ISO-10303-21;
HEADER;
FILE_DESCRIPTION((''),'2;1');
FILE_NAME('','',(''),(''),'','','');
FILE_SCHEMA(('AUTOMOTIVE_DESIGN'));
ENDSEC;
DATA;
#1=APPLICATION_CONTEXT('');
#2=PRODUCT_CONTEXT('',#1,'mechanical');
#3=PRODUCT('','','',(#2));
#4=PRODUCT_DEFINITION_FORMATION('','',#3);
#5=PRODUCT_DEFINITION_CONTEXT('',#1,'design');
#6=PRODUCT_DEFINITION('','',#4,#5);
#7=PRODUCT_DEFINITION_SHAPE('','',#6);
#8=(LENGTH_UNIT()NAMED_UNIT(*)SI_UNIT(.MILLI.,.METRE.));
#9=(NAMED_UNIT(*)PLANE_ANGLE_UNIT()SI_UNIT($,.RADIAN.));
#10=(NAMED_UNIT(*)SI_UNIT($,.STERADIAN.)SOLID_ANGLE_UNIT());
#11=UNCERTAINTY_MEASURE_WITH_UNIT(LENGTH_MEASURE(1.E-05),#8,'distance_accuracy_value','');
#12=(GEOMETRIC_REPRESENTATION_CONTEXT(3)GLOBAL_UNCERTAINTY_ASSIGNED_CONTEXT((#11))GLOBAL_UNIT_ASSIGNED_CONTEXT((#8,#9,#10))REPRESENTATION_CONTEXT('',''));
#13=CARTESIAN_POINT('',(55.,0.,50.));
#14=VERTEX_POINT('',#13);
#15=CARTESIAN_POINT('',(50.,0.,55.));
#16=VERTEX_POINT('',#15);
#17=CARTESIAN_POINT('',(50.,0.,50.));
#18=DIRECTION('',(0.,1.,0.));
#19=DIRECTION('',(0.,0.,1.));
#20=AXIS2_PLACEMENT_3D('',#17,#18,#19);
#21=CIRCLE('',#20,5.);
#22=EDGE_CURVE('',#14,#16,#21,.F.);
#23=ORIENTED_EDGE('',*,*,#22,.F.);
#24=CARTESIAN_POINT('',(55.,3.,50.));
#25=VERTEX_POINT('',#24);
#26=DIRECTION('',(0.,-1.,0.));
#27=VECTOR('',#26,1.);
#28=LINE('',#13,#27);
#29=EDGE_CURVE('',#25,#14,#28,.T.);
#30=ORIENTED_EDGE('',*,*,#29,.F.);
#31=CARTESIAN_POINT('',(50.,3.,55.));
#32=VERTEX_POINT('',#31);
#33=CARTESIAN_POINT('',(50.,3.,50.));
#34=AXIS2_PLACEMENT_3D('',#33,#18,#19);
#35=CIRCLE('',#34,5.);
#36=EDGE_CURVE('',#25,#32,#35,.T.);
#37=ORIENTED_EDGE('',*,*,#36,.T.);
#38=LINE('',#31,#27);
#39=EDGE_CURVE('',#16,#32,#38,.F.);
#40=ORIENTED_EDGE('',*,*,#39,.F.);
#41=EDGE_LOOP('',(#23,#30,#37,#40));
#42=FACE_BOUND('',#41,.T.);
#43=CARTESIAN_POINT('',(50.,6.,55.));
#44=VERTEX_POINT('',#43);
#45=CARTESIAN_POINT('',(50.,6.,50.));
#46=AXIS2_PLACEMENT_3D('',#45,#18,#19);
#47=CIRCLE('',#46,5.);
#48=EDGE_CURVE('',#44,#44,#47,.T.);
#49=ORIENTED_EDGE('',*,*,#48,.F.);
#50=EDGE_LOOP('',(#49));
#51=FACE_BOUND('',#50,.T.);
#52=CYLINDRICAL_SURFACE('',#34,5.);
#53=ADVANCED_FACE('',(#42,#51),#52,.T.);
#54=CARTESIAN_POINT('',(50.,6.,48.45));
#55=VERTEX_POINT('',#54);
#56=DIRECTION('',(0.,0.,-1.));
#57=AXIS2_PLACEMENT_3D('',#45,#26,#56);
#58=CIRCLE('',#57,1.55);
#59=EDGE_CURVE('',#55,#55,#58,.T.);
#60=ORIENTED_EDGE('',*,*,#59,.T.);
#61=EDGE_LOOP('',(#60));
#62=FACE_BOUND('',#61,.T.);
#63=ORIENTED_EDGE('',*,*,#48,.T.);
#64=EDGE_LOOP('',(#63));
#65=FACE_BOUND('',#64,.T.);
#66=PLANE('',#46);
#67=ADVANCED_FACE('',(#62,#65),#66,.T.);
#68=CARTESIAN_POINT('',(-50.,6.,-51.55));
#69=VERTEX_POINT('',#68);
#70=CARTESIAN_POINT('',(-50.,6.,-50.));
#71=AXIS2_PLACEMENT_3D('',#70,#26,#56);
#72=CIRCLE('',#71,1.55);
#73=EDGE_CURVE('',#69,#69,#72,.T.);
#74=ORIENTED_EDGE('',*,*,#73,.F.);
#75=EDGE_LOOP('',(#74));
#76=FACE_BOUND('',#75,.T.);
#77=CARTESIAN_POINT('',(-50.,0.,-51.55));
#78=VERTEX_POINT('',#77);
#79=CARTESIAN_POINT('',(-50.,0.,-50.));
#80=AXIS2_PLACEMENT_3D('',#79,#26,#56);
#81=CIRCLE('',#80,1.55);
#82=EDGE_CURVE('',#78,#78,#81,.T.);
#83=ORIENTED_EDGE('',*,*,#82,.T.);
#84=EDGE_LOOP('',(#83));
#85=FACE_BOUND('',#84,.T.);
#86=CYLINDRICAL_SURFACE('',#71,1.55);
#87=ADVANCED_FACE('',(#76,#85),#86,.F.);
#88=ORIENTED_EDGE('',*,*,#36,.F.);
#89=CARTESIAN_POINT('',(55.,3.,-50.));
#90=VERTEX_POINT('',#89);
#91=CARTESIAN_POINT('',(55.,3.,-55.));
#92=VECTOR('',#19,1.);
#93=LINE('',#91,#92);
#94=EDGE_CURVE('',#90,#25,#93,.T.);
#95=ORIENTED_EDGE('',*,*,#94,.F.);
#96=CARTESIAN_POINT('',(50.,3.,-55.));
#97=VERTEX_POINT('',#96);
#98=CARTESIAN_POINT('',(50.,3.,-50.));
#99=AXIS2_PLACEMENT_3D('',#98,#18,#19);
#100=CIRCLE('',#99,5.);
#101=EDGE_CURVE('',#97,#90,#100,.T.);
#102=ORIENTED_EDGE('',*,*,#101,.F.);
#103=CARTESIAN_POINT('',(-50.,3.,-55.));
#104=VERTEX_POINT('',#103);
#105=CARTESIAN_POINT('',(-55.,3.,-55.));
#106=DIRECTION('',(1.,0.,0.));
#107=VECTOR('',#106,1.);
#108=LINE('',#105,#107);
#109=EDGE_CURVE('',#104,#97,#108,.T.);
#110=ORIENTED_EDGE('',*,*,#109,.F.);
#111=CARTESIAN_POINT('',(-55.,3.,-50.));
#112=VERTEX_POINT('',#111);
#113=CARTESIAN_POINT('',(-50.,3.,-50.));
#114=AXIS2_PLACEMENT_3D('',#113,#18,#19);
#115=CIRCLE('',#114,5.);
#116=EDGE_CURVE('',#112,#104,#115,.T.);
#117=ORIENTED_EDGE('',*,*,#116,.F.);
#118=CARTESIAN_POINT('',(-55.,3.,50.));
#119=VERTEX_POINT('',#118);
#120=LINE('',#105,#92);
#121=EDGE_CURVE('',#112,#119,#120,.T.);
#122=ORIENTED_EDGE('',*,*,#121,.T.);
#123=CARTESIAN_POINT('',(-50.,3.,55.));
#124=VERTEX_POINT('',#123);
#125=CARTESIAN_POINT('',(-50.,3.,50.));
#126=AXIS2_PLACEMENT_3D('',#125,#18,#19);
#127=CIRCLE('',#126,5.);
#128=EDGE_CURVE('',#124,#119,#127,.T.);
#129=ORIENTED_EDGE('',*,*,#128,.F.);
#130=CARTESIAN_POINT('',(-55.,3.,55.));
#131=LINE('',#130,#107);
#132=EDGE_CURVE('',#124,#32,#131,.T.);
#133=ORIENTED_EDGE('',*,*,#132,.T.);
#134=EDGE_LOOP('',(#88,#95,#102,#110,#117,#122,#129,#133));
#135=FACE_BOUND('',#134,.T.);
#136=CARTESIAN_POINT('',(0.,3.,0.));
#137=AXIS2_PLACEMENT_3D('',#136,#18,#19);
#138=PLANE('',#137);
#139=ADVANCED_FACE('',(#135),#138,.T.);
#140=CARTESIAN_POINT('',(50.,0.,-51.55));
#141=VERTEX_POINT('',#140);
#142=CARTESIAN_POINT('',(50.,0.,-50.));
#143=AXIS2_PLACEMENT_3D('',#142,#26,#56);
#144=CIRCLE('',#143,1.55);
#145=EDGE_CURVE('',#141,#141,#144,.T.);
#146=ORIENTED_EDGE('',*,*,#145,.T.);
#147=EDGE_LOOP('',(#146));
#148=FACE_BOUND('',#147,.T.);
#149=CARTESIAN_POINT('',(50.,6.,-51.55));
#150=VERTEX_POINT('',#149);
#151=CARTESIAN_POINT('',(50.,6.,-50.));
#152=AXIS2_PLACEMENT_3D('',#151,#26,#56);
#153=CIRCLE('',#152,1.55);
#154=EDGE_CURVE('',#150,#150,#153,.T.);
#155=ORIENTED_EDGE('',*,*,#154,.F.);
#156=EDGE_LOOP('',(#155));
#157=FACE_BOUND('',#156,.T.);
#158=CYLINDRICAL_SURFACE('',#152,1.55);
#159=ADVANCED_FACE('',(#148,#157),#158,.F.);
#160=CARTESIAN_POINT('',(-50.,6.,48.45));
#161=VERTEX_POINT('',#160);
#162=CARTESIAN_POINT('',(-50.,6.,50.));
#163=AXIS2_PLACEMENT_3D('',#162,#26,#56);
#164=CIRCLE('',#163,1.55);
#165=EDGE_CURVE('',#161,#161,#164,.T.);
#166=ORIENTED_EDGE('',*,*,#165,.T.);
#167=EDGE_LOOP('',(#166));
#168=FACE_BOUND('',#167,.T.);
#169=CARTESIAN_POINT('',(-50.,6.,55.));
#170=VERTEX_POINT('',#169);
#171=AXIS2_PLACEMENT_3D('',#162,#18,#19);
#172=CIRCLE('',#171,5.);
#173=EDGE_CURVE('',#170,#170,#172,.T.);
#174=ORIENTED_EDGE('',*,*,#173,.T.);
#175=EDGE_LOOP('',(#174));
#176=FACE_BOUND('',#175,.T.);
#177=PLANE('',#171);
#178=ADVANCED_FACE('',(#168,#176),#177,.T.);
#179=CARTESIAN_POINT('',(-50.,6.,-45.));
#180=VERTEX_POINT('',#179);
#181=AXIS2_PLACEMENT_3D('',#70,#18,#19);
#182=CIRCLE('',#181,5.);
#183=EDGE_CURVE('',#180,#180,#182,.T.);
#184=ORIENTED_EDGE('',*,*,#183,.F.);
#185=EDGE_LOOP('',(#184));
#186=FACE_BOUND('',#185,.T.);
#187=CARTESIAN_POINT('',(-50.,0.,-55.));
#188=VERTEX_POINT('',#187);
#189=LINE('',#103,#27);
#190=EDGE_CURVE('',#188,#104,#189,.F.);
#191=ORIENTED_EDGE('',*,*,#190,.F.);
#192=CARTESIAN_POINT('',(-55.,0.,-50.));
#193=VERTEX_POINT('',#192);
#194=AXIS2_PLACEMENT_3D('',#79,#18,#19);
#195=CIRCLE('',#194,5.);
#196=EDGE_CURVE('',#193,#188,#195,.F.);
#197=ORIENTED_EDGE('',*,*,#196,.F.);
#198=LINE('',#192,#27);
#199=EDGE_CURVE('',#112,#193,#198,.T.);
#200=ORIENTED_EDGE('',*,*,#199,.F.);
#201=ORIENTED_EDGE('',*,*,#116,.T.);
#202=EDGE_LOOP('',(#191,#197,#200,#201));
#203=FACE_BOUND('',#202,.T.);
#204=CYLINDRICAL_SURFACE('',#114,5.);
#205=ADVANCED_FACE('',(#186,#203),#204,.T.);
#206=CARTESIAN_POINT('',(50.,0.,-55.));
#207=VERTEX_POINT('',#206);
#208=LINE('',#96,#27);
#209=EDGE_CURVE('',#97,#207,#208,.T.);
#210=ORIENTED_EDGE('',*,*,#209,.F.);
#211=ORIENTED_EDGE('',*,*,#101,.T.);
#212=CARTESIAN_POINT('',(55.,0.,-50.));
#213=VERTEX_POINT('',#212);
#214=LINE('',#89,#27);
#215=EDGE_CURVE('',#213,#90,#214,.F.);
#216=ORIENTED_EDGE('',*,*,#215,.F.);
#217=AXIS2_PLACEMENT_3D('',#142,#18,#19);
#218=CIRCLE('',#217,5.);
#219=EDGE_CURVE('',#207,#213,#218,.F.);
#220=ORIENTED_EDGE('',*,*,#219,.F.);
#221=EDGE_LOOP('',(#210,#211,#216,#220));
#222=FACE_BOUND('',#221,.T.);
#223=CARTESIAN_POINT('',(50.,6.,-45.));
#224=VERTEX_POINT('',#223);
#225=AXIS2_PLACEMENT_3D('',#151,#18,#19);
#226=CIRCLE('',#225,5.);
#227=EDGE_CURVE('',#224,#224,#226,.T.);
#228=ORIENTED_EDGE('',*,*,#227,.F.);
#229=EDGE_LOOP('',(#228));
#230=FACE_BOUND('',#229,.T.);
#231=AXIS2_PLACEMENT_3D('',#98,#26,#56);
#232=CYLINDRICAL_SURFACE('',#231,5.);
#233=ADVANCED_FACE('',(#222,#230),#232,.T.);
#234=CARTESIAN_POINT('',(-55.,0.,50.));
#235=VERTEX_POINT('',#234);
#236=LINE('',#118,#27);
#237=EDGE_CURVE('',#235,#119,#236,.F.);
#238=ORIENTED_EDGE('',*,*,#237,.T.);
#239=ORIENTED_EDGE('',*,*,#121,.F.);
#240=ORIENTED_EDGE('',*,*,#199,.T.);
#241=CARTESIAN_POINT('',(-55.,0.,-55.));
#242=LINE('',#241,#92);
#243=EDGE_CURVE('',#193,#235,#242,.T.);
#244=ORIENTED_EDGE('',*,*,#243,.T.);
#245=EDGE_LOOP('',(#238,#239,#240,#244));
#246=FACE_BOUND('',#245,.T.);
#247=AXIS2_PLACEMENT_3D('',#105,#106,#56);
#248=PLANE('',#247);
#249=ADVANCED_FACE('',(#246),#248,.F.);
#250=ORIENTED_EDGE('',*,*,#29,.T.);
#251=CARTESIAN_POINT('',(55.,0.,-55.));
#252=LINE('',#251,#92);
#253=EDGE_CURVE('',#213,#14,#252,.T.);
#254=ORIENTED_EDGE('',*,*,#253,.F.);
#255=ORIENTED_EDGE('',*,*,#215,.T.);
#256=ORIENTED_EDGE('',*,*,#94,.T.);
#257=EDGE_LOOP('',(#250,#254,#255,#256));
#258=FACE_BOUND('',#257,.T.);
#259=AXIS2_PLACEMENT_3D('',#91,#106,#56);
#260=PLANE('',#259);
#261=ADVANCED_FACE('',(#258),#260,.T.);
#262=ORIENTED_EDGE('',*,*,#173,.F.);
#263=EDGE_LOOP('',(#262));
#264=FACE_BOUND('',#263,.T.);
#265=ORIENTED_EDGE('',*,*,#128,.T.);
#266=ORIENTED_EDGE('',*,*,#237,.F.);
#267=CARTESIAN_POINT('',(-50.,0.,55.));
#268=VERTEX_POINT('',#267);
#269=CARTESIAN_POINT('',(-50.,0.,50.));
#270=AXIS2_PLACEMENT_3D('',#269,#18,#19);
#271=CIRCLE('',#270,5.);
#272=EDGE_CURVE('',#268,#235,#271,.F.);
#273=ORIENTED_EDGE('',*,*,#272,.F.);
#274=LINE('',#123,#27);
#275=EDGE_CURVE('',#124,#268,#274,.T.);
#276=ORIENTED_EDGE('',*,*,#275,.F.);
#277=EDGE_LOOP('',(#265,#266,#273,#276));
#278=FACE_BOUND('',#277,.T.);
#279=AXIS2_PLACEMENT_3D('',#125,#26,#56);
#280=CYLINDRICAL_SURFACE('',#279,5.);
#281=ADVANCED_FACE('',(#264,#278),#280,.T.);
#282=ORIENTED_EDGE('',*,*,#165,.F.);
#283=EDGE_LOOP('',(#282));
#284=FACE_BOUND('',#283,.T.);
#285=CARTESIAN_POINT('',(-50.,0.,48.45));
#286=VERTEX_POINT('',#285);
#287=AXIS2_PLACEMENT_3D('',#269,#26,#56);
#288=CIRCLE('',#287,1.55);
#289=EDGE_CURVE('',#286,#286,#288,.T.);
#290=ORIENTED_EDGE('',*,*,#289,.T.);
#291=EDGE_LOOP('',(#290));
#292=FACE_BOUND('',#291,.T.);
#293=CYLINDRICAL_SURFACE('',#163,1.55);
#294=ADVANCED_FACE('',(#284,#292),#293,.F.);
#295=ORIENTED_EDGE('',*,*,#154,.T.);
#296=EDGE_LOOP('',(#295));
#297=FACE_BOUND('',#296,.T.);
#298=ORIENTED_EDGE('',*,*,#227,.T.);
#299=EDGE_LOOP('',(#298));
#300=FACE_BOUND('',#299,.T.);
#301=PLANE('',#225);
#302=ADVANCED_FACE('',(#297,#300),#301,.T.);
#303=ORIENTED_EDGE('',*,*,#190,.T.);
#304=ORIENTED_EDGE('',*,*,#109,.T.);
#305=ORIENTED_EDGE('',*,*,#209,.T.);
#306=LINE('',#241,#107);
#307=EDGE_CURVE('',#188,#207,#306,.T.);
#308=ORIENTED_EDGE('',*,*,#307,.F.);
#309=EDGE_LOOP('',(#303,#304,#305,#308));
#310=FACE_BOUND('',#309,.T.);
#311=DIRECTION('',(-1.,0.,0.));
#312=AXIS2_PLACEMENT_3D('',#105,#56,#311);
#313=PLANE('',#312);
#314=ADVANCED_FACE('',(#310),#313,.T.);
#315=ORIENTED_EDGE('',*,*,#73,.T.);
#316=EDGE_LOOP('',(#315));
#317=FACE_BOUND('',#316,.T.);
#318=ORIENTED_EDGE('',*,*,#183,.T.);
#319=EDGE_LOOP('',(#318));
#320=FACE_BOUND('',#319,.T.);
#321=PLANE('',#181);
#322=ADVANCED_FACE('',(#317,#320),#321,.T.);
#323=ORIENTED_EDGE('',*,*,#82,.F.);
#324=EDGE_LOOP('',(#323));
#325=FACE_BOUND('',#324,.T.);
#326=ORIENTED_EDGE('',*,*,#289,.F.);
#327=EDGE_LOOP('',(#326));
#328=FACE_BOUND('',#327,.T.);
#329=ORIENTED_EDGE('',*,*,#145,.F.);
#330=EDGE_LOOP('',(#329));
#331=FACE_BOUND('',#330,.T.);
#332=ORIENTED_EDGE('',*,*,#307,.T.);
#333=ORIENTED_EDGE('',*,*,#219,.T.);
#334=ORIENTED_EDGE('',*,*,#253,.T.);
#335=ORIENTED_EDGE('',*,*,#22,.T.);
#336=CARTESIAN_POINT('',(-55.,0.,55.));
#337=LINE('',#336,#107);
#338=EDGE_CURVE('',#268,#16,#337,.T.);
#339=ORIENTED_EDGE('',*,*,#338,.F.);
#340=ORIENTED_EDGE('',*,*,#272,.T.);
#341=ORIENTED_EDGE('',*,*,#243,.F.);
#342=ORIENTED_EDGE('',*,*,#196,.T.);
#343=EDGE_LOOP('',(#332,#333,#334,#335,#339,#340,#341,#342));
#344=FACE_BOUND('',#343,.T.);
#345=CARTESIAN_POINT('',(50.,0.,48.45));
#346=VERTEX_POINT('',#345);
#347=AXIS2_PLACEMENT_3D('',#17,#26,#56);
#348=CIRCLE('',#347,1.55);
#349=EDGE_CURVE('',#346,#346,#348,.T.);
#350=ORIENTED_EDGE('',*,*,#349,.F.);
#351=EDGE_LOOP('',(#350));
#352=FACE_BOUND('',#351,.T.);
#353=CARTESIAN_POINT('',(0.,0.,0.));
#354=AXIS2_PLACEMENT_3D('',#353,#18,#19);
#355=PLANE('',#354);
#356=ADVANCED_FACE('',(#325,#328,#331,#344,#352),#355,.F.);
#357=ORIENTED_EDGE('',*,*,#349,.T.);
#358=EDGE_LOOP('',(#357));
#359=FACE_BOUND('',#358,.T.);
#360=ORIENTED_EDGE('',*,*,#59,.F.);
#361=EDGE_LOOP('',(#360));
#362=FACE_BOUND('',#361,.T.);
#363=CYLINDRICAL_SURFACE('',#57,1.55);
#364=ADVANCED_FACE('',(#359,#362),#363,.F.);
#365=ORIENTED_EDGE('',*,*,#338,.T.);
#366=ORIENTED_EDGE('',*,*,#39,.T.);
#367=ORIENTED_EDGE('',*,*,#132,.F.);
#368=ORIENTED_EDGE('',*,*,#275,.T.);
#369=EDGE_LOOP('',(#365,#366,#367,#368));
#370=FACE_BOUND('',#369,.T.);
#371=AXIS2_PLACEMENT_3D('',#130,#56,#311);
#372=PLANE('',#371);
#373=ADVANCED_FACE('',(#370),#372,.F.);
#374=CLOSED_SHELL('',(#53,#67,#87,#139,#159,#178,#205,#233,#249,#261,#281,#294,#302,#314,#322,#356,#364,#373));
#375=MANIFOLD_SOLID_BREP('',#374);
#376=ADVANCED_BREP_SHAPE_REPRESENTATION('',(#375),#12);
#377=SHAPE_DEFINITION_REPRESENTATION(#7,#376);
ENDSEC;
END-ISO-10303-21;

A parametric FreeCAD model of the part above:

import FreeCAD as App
import Part
import Sketcher


def edges_at(feature, points):
    """Names of the edges that pass closest to the given points."""
    edges = feature.Shape.Edges
    near = lambda p: min(range(len(edges)), key=lambda i: edges[i].distToShape(Part.Vertex(*p))[0])
    return sorted({f"Edge{near(p) + 1}" for p in points})


def add_polygon(sketch, points):
    """Adds a closed chain of lines whose ends are joined by coincident constraints."""
    first, n = sketch.GeometryCount, len(points)
    for a, b in zip(points, points[1:] + points[:1]):
        sketch.addGeometry(Part.LineSegment(App.Vector(*a, 0), App.Vector(*b, 0)), False)
    for i in range(n):
        sketch.addConstraint(Sketcher.Constraint("Coincident", first + i, 2, first + (i + 1) % n, 1))

doc = App.newDocument("Part")
params = doc.addObject("Spreadsheet::Sheet", "Params")
for row, (alias, value) in enumerate([
    ("sketch1_width", "110 mm"),
    ("pad1_length", "3 mm"),
    ("fillet_radius", "5 mm"),
    ("sketch2_diameter", "10 mm"),
    ("pad2_length", "3 mm"),
    ("sketch3_diameter", "3.1 mm"),
], start=1):
    params.set(f"A{row}", alias)
    params.set(f"B{row}", "=" + value)
    params.setAlias(f"B{row}", alias)

body = doc.addObject("PartDesign::Body", "Body")

# Sketch on XZ plane
sketch1 = body.newObject("Sketcher::SketchObject", "Sketch")
sketch1.AttachmentSupport = (doc.getObject("XZ_Plane"), [""])
sketch1.MapMode = "FlatFace"
add_polygon(sketch1, [(-55, -55), (-55, 55), (55, 55), (55, -55)])  # lines 0-3
sketch1.addConstraint([
    Sketcher.Constraint("Vertical", 0),
    Sketcher.Constraint("Horizontal", 1),
    Sketcher.Constraint("Vertical", 2),
    Sketcher.Constraint("Horizontal", 3),
    Sketcher.Constraint("Symmetric", 0, 2, 2, 2, -1, 1),
    Sketcher.Constraint("Equal", 3, 0),
    Sketcher.Constraint("DistanceX", 1, 1, 1, 2, 110.0),
])
sketch1.setExpression("Constraints[10]", "Params.sketch1_width")
pad1 = body.newObject("PartDesign::Pad", "Pad")
pad1.Profile = sketch1
pad1.setExpression("Length", "Params.pad1_length")
pad1.Reversed = True
doc.recompute()

fillet = body.newObject("PartDesign::Fillet", "Fillet")
fillet.Base = (pad1, edges_at(pad1, [
    (-55, 1.5, -55),
    (55, 1.5, -55),
    (55, 1.5, 55),
    (-55, 1.5, 55),
]))
fillet.setExpression("Radius", "Params.fillet_radius")

# Sketch on XZ plane
sketch2 = body.newObject("Sketcher::SketchObject", "Sketch001")
sketch2.AttachmentSupport = (doc.getObject("XZ_Plane"), [""])
sketch2.MapMode = "FlatFace"
sketch2.AttachmentOffset = App.Placement(App.Vector(0, 0, -3), App.Rotation())
sketch2.addGeometry([
    Part.Circle(App.Vector(-50, -50, 0), App.Vector(0, 0, 1), 5),
    Part.Circle(App.Vector(50, -50, 0), App.Vector(0, 0, 1), 5),
    Part.Circle(App.Vector(50, 50, 0), App.Vector(0, 0, 1), 5),
    Part.Circle(App.Vector(-50, 50, 0), App.Vector(0, 0, 1), 5),
], False)
sketch2.addConstraint([
    Sketcher.Constraint("Equal", 0, 1),
    Sketcher.Constraint("Equal", 1, 2),
    Sketcher.Constraint("Equal", 2, 3),
    Sketcher.Constraint("Symmetric", 0, 3, 2, 3, -1, 1),
    Sketcher.Constraint("Symmetric", 1, 3, 3, 3, -1, 1),
    Sketcher.Constraint("Symmetric", 0, 3, 1, 3, -2),
    Sketcher.Constraint("Diameter", 0, 10.0),
    Sketcher.Constraint("DistanceX", 0, 3, -1, 1, 50.0),
    Sketcher.Constraint("DistanceY", 0, 3, -1, 1, 50.0),
])
sketch2.setExpression("Constraints[6]", "Params.sketch2_diameter")
pad2 = body.newObject("PartDesign::Pad", "Pad001")
pad2.Profile = sketch2
pad2.setExpression("Length", "Params.pad2_length")
pad2.Reversed = True

# Sketch on XZ plane
sketch3 = body.newObject("Sketcher::SketchObject", "Sketch002")
sketch3.AttachmentSupport = (doc.getObject("XZ_Plane"), [""])
sketch3.MapMode = "FlatFace"
sketch3.addGeometry([
    Part.Circle(App.Vector(-50, 50, 0), App.Vector(0, 0, 1), 1.6),
    Part.Circle(App.Vector(50, -50, 0), App.Vector(0, 0, 1), 1.6),
    Part.Circle(App.Vector(50, 50, 0), App.Vector(0, 0, 1), 1.6),
    Part.Circle(App.Vector(-50, -50, 0), App.Vector(0, 0, 1), 1.6),
], False)
sketch3.addConstraint([
    Sketcher.Constraint("Equal", 0, 1),
    Sketcher.Constraint("Equal", 1, 2),
    Sketcher.Constraint("Equal", 2, 3),
    Sketcher.Constraint("Symmetric", 0, 3, 1, 3, -1, 1),
    Sketcher.Constraint("Symmetric", 2, 3, 3, 3, -1, 1),
    Sketcher.Constraint("Symmetric", 0, 3, 2, 3, -2),
    Sketcher.Constraint("Diameter", 0, 3.1),
    Sketcher.Constraint("DistanceX", 0, 3, -1, 1, 50.0),
    Sketcher.Constraint("DistanceY", -1, 1, 0, 3, 50.0),
])
sketch3.setExpression("Constraints[6]", "Params.sketch3_diameter")
pocket1 = body.newObject("PartDesign::Pocket", "Pocket")
pocket1.Profile = sketch3
pocket1.Type = "ThroughAll"

doc.recompute()
